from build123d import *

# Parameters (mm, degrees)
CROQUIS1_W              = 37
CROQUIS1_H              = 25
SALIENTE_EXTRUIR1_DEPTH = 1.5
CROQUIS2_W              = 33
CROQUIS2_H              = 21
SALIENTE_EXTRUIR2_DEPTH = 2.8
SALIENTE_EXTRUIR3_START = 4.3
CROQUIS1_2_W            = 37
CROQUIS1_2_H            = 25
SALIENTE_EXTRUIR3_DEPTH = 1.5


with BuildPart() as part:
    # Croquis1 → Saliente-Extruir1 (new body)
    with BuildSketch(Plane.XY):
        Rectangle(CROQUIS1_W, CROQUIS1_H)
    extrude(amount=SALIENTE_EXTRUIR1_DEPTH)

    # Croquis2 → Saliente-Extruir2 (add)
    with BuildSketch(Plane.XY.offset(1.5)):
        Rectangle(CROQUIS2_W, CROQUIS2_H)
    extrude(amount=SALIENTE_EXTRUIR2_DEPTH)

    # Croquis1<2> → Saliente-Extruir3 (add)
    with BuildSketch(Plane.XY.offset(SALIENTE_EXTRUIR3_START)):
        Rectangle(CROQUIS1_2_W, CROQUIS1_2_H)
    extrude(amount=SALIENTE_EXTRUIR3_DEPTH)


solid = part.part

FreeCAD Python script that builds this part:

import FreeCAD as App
import Part
import Sketcher

V = App.Vector
Q = App.Units.Quantity

doc = App.newDocument("Part")
body = doc.addObject("PartDesign::Body", "Body")

# Sketch on XY plane
sketch1 = body.newObject("Sketcher::SketchObject", "Sketch")
sketch1.AttachmentSupport = (doc.getObject("XY_Plane"), [""])
sketch1.MapMode = "FlatFace"
sketch1.addGeometry(Part.LineSegment(V(-18, 12, 0), V(-18, -12, 0)), False)
sketch1.addGeometry(Part.LineSegment(V(-18, -12, 0), V(18, -12, 0)), False)
sketch1.addGeometry(Part.LineSegment(V(18, -12, 0), V(18, 12, 0)), False)
sketch1.addGeometry(Part.LineSegment(V(18, 12, 0), V(-18, 12, 0)), False)
sketch1.addConstraint(Sketcher.Constraint("Coincident", 0, 2, 1, 1))
sketch1.addConstraint(Sketcher.Constraint("Coincident", 1, 2, 2, 1))
sketch1.addConstraint(Sketcher.Constraint("Coincident", 2, 2, 3, 1))
sketch1.addConstraint(Sketcher.Constraint("Coincident", 3, 2, 0, 1))
sketch1.addConstraint(Sketcher.Constraint("Vertical", 0))
sketch1.addConstraint(Sketcher.Constraint("Horizontal", 1))
sketch1.addConstraint(Sketcher.Constraint("Vertical", 2))
sketch1.addConstraint(Sketcher.Constraint("Horizontal", 3))
sketch1.addConstraint(Sketcher.Constraint("Symmetric", 0, 2, 2, 2, -1, 1))
sketch1.addConstraint(Sketcher.Constraint("DistanceX", 1, 1, 1, 2, Q("37 mm")))
sketch1.addConstraint(Sketcher.Constraint("DistanceY", 0, 2, 0, 1, Q("25 mm")))
pad1 = body.newObject("PartDesign::Pad", "Pad")
pad1.Profile = sketch1
pad1.Length = 1.5

# Sketch on XY plane
sketch2 = body.newObject("Sketcher::SketchObject", "Sketch001")
sketch2.AttachmentSupport = (doc.getObject("XY_Plane"), [""])
sketch2.MapMode = "FlatFace"
sketch2.AttachmentOffset = App.Placement(V(0, 0, 1.5), App.Rotation())
sketch2.addGeometry(Part.LineSegment(V(-16, 10, 0), V(-16, -10, 0)), False)
sketch2.addGeometry(Part.LineSegment(V(-16, -10, 0), V(16, -10, 0)), False)
sketch2.addGeometry(Part.LineSegment(V(16, -10, 0), V(16, 10, 0)), False)
sketch2.addGeometry(Part.LineSegment(V(16, 10, 0), V(-16, 10, 0)), False)
sketch2.addConstraint(Sketcher.Constraint("Coincident", 0, 2, 1, 1))
sketch2.addConstraint(Sketcher.Constraint("Coincident", 1, 2, 2, 1))
sketch2.addConstraint(Sketcher.Constraint("Coincident", 2, 2, 3, 1))
sketch2.addConstraint(Sketcher.Constraint("Coincident", 3, 2, 0, 1))
sketch2.addConstraint(Sketcher.Constraint("Vertical", 0))
sketch2.addConstraint(Sketcher.Constraint("Horizontal", 1))
sketch2.addConstraint(Sketcher.Constraint("Vertical", 2))
sketch2.addConstraint(Sketcher.Constraint("Horizontal", 3))
sketch2.addConstraint(Sketcher.Constraint("Symmetric", 0, 2, 2, 2, -1, 1))
sketch2.addConstraint(Sketcher.Constraint("DistanceX", 1, 1, 1, 2, Q("33 mm")))
sketch2.addConstraint(Sketcher.Constraint("DistanceY", 0, 2, 0, 1, Q("21 mm")))
pad2 = body.newObject("PartDesign::Pad", "Pad001")
pad2.Profile = sketch2
pad2.Length = 2.8

# Sketch on XY plane
sketch3 = body.newObject("Sketcher::SketchObject", "Sketch002")
sketch3.AttachmentSupport = (doc.getObject("XY_Plane"), [""])
sketch3.MapMode = "FlatFace"
sketch3.AttachmentOffset = App.Placement(V(0, 0, 4.3), App.Rotation())
sketch3.addGeometry(Part.LineSegment(V(-18, 12, 0), V(-18, -12, 0)), False)
sketch3.addGeometry(Part.LineSegment(V(-18, -12, 0), V(18, -12, 0)), False)
sketch3.addGeometry(Part.LineSegment(V(18, -12, 0), V(18, 12, 0)), False)
sketch3.addGeometry(Part.LineSegment(V(18, 12, 0), V(-18, 12, 0)), False)
sketch3.addConstraint(Sketcher.Constraint("Coincident", 0, 2, 1, 1))
sketch3.addConstraint(Sketcher.Constraint("Coincident", 1, 2, 2, 1))
sketch3.addConstraint(Sketcher.Constraint("Coincident", 2, 2, 3, 1))
sketch3.addConstraint(Sketcher.Constraint("Coincident", 3, 2, 0, 1))
sketch3.addConstraint(Sketcher.Constraint("Vertical", 0))
sketch3.addConstraint(Sketcher.Constraint("Horizontal", 1))
sketch3.addConstraint(Sketcher.Constraint("Vertical", 2))
sketch3.addConstraint(Sketcher.Constraint("Horizontal", 3))
sketch3.addConstraint(Sketcher.Constraint("Symmetric", 0, 2, 2, 2, -1, 1))
sketch3.addConstraint(Sketcher.Constraint("DistanceX", 1, 1, 1, 2, Q("37 mm")))
sketch3.addConstraint(Sketcher.Constraint("DistanceY", 0, 2, 0, 1, Q("25 mm")))
pad3 = body.newObject("PartDesign::Pad", "Pad002")
pad3.Profile = sketch3
pad3.Length = 1.5

doc.recompute()
